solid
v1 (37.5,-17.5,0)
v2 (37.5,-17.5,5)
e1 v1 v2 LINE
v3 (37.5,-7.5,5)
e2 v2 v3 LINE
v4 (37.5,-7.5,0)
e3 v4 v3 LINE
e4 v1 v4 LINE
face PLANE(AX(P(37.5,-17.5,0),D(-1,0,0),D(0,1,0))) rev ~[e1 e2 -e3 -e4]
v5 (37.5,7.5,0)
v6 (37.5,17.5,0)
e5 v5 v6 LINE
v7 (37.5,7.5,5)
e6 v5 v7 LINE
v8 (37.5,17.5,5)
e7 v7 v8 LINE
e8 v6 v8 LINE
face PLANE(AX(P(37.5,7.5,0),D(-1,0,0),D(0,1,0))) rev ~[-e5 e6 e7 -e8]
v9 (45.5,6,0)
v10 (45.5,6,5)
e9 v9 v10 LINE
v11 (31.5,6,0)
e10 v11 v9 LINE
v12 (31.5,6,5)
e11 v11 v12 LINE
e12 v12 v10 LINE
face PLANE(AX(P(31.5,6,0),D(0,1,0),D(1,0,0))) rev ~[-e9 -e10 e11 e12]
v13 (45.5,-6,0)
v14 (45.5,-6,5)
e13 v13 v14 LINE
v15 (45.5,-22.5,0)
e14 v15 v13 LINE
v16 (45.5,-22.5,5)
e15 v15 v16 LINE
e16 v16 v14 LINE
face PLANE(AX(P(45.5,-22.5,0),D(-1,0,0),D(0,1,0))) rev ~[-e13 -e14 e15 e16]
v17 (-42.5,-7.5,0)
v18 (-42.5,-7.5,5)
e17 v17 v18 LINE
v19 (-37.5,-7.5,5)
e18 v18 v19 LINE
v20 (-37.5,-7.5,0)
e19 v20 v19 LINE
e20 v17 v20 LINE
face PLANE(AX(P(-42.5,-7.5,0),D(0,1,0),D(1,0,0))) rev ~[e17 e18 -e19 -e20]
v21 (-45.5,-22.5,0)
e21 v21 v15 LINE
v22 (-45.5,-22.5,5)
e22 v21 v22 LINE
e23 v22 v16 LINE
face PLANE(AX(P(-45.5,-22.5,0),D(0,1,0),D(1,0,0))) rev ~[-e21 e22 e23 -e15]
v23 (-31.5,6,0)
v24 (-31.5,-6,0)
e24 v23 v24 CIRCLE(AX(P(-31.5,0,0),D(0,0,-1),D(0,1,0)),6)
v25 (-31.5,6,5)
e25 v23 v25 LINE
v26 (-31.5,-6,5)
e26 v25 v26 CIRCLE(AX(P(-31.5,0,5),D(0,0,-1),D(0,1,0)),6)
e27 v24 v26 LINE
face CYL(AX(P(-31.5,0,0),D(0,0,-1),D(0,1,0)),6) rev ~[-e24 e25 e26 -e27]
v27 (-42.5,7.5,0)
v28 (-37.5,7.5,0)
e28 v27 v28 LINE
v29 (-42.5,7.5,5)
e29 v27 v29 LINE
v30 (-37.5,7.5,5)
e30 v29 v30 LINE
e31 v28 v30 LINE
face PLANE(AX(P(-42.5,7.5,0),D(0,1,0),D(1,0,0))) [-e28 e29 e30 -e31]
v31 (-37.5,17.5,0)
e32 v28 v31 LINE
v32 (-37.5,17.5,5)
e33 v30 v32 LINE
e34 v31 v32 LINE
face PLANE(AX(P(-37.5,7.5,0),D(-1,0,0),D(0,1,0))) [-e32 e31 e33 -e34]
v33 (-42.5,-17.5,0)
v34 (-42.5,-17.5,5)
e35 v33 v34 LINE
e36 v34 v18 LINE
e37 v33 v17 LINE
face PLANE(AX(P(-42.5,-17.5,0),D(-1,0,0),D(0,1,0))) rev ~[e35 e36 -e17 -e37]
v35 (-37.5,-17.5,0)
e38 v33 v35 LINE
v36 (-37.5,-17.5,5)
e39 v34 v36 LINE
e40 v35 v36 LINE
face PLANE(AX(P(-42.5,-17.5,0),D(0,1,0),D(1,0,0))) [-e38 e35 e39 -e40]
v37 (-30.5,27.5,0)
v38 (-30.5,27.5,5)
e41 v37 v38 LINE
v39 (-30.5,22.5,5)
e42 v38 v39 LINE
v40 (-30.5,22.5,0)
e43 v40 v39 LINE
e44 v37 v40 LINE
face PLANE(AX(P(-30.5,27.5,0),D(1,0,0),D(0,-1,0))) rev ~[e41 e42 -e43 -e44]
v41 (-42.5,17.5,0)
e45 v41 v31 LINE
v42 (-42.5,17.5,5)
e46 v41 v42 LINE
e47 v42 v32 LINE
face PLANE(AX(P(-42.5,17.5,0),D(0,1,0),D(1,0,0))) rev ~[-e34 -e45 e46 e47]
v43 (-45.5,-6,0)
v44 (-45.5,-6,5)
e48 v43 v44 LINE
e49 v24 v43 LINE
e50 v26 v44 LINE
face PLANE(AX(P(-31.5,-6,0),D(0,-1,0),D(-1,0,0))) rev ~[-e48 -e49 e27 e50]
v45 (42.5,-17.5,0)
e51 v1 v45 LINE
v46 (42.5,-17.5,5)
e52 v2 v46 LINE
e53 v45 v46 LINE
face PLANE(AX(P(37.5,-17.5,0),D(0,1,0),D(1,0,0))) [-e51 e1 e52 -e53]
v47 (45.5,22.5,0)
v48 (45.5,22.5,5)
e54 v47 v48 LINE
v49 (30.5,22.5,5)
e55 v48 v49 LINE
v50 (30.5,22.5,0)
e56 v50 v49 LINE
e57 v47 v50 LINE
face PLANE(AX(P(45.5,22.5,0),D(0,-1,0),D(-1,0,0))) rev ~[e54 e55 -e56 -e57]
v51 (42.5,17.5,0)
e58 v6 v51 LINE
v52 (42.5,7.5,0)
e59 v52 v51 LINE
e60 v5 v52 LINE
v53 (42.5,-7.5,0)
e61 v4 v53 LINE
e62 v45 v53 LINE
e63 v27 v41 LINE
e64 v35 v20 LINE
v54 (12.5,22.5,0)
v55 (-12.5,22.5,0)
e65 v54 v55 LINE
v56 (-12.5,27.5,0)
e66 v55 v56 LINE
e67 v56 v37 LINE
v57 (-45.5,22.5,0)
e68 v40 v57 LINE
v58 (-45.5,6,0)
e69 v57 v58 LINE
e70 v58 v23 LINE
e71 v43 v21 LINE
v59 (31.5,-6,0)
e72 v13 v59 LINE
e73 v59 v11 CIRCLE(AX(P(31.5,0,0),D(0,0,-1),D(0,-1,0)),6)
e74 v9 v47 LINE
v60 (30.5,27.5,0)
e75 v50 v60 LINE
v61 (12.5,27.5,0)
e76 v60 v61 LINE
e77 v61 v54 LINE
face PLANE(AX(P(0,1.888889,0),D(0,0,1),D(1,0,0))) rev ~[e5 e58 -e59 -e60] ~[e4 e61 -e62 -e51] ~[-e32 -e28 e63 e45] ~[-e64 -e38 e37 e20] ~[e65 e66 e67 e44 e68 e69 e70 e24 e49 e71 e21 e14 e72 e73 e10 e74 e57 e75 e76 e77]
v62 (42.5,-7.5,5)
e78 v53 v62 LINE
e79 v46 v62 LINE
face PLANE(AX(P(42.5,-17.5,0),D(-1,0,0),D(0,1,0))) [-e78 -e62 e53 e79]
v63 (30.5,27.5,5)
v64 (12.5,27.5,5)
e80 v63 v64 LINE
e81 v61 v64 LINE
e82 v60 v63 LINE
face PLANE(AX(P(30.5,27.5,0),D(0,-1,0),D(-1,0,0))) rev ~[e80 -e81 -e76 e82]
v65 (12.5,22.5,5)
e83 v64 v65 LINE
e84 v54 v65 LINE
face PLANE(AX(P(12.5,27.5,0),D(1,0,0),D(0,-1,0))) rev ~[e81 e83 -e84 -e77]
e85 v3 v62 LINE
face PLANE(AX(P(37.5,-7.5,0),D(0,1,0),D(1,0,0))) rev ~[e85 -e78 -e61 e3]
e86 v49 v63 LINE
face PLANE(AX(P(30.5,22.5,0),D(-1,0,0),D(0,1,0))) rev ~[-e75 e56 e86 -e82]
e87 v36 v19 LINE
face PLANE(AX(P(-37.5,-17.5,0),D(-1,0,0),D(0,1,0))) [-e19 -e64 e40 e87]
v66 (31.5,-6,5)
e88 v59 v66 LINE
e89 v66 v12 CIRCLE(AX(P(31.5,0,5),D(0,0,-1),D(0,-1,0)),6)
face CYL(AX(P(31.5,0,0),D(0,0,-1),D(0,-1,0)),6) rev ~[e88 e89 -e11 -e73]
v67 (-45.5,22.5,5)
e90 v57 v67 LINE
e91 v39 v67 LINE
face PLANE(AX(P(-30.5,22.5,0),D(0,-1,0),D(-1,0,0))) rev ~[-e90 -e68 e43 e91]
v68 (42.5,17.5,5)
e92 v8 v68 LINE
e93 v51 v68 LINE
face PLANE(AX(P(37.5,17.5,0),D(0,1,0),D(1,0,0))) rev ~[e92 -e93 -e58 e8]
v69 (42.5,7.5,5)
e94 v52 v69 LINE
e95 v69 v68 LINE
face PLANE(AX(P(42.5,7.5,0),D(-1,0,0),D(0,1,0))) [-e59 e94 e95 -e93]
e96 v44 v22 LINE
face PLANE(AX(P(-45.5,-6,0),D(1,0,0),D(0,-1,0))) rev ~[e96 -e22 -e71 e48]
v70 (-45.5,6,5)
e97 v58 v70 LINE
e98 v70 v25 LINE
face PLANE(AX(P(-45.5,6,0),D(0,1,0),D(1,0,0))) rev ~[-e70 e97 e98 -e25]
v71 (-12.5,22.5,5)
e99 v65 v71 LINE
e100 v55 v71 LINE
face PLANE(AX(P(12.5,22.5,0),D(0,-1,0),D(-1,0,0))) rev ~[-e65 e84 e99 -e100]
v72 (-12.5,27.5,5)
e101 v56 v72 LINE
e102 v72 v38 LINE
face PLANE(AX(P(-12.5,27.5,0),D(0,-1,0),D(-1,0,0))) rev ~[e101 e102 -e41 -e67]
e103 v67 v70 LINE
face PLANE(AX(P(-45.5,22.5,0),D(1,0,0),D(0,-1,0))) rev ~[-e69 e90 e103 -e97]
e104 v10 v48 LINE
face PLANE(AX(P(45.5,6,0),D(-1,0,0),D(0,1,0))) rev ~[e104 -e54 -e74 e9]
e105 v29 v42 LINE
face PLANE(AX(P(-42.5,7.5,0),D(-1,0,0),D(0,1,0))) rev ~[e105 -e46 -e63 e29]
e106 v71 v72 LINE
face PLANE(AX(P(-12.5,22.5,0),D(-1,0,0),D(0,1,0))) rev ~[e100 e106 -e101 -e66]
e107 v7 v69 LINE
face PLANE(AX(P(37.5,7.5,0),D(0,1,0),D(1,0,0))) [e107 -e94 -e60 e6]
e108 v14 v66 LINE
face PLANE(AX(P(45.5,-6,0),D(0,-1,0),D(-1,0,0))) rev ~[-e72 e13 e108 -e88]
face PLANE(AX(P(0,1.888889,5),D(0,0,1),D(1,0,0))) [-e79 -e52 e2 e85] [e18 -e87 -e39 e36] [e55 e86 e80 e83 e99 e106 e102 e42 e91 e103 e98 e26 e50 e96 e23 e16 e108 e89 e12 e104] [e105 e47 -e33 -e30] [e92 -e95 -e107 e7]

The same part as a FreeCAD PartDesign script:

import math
import FreeCAD as App
import Part
import Sketcher

V = App.Vector


def add_polygon(sketch, points):
    """Adds a closed chain of lines whose ends are joined by coincident constraints."""
    first, n = sketch.GeometryCount, len(points)
    for a, b in zip(points, points[1:] + points[:1]):
        sketch.addGeometry(Part.LineSegment(App.Vector(*a, 0), App.Vector(*b, 0)), False)
    for i in range(n):
        sketch.addConstraint(Sketcher.Constraint("Coincident", first + i, 2, first + (i + 1) % n, 1))

doc = App.newDocument("Part")
params = doc.addObject("Spreadsheet::Sheet", "Params")
for row, (alias, value) in enumerate([
    ("sketch1_radius", "6 mm"),
    ("sketch1_width", "15 mm"),
    ("sketch1_width2", "14 mm"),
    ("sketch1_width3", "91 mm"),
    ("sketch1_width4", "18 mm"),
    ("pad1_length", "5 mm"),
], start=1):
    params.set(f"A{row}", alias)
    params.set(f"B{row}", "=" + value)
    params.setAlias(f"B{row}", alias)

body = doc.addObject("PartDesign::Body", "Body")

# Sketch on XY plane
sketch1 = body.newObject("Sketcher::SketchObject", "Sketch")
sketch1.AttachmentSupport = (doc.getObject("XY_Plane"), [""])
sketch1.MapMode = "FlatFace"
sketch1.addGeometry(Part.LineSegment(V(-30.5, 22.5, 0), V(-45.5, 22.5, 0)), False)  # 0
sketch1.addGeometry(Part.LineSegment(V(-45.5, 22.5, 0), V(-45.5, 6, 0)), False)  # 1
sketch1.addGeometry(Part.LineSegment(V(-45.5, 6, 0), V(-31.5, 6, 0)), False)  # 2
sketch1.addGeometry(Part.ArcOfCircle(Part.Circle(V(-31.5, 0, 0), V(0, 0, 1), 6), math.radians(-90), math.radians(90)), False)  # 3
sketch1.addGeometry(Part.LineSegment(V(-31.5, -6, 0), V(-45.5, -6, 0)), False)  # 4
sketch1.addGeometry(Part.LineSegment(V(-45.5, -6, 0), V(-45.5, -22.5, 0)), False)  # 5
sketch1.addGeometry(Part.LineSegment(V(-45.5, -22.5, 0), V(45.5, -22.5, 0)), False)  # 6
sketch1.addGeometry(Part.LineSegment(V(45.5, -22.5, 0), V(45.5, -6, 0)), False)  # 7
sketch1.addGeometry(Part.LineSegment(V(45.5, -6, 0), V(31.5, -6, 0)), False)  # 8
sketch1.addGeometry(Part.ArcOfCircle(Part.Circle(V(31.5, 0, 0), V(0, 0, 1), 6), math.radians(90), math.radians(270)), False)  # 9
sketch1.addGeometry(Part.LineSegment(V(31.5, 6, 0), V(45.5, 6, 0)), False)  # 10
sketch1.addGeometry(Part.LineSegment(V(45.5, 6, 0), V(45.5, 22.5, 0)), False)  # 11
sketch1.addGeometry(Part.LineSegment(V(45.5, 22.5, 0), V(30.5, 22.5, 0)), False)  # 12
sketch1.addGeometry(Part.LineSegment(V(30.5, 22.5, 0), V(30.5, 27.5, 0)), False)  # 13
sketch1.addGeometry(Part.LineSegment(V(30.5, 27.5, 0), V(12.5, 27.5, 0)), False)  # 14
sketch1.addGeometry(Part.LineSegment(V(12.5, 27.5, 0), V(12.5, 22.5, 0)), False)  # 15
sketch1.addGeometry(Part.LineSegment(V(12.5, 22.5, 0), V(-12.5, 22.5, 0)), False)  # 16
sketch1.addGeometry(Part.LineSegment(V(-12.5, 22.5, 0), V(-12.5, 27.5, 0)), False)  # 17
sketch1.addGeometry(Part.LineSegment(V(-12.5, 27.5, 0), V(-30.5, 27.5, 0)), False)  # 18
sketch1.addGeometry(Part.LineSegment(V(-30.5, 27.5, 0), V(-30.5, 22.5, 0)), False)  # 19
add_polygon(sketch1, [(-37.5, -17.5), (-42.5, -17.5), (-42.5, -7.5), (-37.5, -7.5)])  # lines 20-23
add_polygon(sketch1, [(42.5, -17.5), (37.5, -17.5), (37.5, -7.5), (42.5, -7.5)])  # lines 24-27
add_polygon(sketch1, [(-37.5, 7.5), (-42.5, 7.5), (-42.5, 17.5), (-37.5, 17.5)])  # lines 28-31
add_polygon(sketch1, [(42.5, 7.5), (37.5, 7.5), (37.5, 17.5), (42.5, 17.5)])  # lines 32-35
sketch1.addConstraint([
    Sketcher.Constraint("Coincident", 0, 2, 1, 1),
    Sketcher.Constraint("Coincident", 1, 2, 2, 1),
    Sketcher.Constraint("Tangent", 2, 2, 3, 2),
    Sketcher.Constraint("Tangent", 3, 1, 4, 1),
    Sketcher.Constraint("Coincident", 4, 2, 5, 1),
    Sketcher.Constraint("Coincident", 5, 2, 6, 1),
    Sketcher.Constraint("Coincident", 6, 2, 7, 1),
    Sketcher.Constraint("Coincident", 7, 2, 8, 1),
    Sketcher.Constraint("Tangent", 8, 2, 9, 2),
    Sketcher.Constraint("Tangent", 9, 1, 10, 1),
    Sketcher.Constraint("Coincident", 10, 2, 11, 1),
    Sketcher.Constraint("Coincident", 11, 2, 12, 1),
    Sketcher.Constraint("Coincident", 12, 2, 13, 1),
    Sketcher.Constraint("Coincident", 13, 2, 14, 1),
    Sketcher.Constraint("Coincident", 14, 2, 15, 1),
    Sketcher.Constraint("Coincident", 15, 2, 16, 1),
    Sketcher.Constraint("Coincident", 16, 2, 17, 1),
    Sketcher.Constraint("Coincident", 17, 2, 18, 1),
    Sketcher.Constraint("Coincident", 18, 2, 19, 1),
    Sketcher.Constraint("Coincident", 19, 2, 0, 1),
    Sketcher.Constraint("Horizontal", 0),
    Sketcher.Constraint("Vertical", 1),
    Sketcher.Constraint("Horizontal", 2),
    Sketcher.Constraint("Horizontal", 4),
    Sketcher.Constraint("Vertical", 5),
    Sketcher.Constraint("Horizontal", 6),
    Sketcher.Constraint("Vertical", 7),
    Sketcher.Constraint("Horizontal", 8),
    Sketcher.Constraint("Horizontal", 10),
    Sketcher.Constraint("Vertical", 11),
    Sketcher.Constraint("Horizontal", 12),
    Sketcher.Constraint("Vertical", 13),
    Sketcher.Constraint("Horizontal", 14),
    Sketcher.Constraint("Vertical", 15),
    Sketcher.Constraint("Horizontal", 16),
    Sketcher.Constraint("Vertical", 17),
    Sketcher.Constraint("Horizontal", 18),
    Sketcher.Constraint("Vertical", 19),
    Sketcher.Constraint("Horizontal", 20),
    Sketcher.Constraint("Vertical", 21),
    Sketcher.Constraint("Horizontal", 22),
    Sketcher.Constraint("Vertical", 23),
    Sketcher.Constraint("Horizontal", 24),
    Sketcher.Constraint("Vertical", 25),
    Sketcher.Constraint("Horizontal", 26),
    Sketcher.Constraint("Vertical", 27),
    Sketcher.Constraint("Horizontal", 28),
    Sketcher.Constraint("Vertical", 29),
    Sketcher.Constraint("Horizontal", 30),
    Sketcher.Constraint("Vertical", 31),
    Sketcher.Constraint("Horizontal", 32),
    Sketcher.Constraint("Vertical", 33),
    Sketcher.Constraint("Horizontal", 34),
    Sketcher.Constraint("Vertical", 35),
    Sketcher.Constraint("Equal", 3, 9),
    Sketcher.Constraint("Symmetric", 3, 3, 9, 3, -1, 1),
    Sketcher.Constraint("Symmetric", 0, 2, 6, 2, -1, 1),
    Sketcher.Constraint("Symmetric", 5, 2, 11, 2, -1, 1),
    Sketcher.Constraint("Symmetric", 26, 2, 28, 2, -1, 1),
    Sketcher.Constraint("Symmetric", 24, 2, 30, 2, -1, 1),
    Sketcher.Constraint("Symmetric", 22, 2, 32, 2, -1, 1),
    Sketcher.Constraint("Symmetric", 20, 2, 34, 2, -1, 1),
    Sketcher.Constraint("Symmetric", 4, 2, 7, 2, -2),
    Sketcher.Constraint("Symmetric", 14, 2, 17, 2, -2),
    Sketcher.Constraint("Symmetric", 23, 2, 24, 2, -2),
    Sketcher.Constraint("Symmetric", 21, 2, 26, 2, -2),
    Sketcher.Constraint("Horizontal", 12, 2, 15, 2),
    Sketcher.Constraint("Equal", 0, 12),
    Sketcher.Constraint("Equal", 34, 13),
    Sketcher.Constraint("Radius", 3, 6.0),
    Sketcher.Constraint("DistanceX", 0, 2, 0, 1, 15.0),
    Sketcher.Constraint("DistanceX", 2, 1, 2, 2, 14.0),
    Sketcher.Constraint("DistanceX", 6, 1, 6, 2, 91.0),
    Sketcher.Constraint("DistanceX", 14, 2, 14, 1, 18.0),
    Sketcher.Constraint("DistanceX", 20, 2, 20, 1, 5.0),
    Sketcher.Constraint("DistanceY", 21, 1, 21, 2, 10.0),
    Sketcher.Constraint("DistanceY", 1, 2, 1, 1, 16.5),
    Sketcher.Constraint("DistanceX", 5, 2, 20, 2, 3.0),
    Sketcher.Constraint("DistanceY", 5, 2, 20, 2, 5.0),
])
sketch1.setExpression("Constraints[85]", "Params.sketch1_radius")
sketch1.setExpression("Constraints[86]", "Params.sketch1_width")
sketch1.setExpression("Constraints[87]", "Params.sketch1_width2")
sketch1.setExpression("Constraints[88]", "Params.sketch1_width3")
sketch1.setExpression("Constraints[89]", "Params.sketch1_width4")
pad1 = body.newObject("PartDesign::Pad", "Pad")
pad1.Profile = sketch1
pad1.setExpression("Length", "Params.pad1_length")

doc.recompute()
